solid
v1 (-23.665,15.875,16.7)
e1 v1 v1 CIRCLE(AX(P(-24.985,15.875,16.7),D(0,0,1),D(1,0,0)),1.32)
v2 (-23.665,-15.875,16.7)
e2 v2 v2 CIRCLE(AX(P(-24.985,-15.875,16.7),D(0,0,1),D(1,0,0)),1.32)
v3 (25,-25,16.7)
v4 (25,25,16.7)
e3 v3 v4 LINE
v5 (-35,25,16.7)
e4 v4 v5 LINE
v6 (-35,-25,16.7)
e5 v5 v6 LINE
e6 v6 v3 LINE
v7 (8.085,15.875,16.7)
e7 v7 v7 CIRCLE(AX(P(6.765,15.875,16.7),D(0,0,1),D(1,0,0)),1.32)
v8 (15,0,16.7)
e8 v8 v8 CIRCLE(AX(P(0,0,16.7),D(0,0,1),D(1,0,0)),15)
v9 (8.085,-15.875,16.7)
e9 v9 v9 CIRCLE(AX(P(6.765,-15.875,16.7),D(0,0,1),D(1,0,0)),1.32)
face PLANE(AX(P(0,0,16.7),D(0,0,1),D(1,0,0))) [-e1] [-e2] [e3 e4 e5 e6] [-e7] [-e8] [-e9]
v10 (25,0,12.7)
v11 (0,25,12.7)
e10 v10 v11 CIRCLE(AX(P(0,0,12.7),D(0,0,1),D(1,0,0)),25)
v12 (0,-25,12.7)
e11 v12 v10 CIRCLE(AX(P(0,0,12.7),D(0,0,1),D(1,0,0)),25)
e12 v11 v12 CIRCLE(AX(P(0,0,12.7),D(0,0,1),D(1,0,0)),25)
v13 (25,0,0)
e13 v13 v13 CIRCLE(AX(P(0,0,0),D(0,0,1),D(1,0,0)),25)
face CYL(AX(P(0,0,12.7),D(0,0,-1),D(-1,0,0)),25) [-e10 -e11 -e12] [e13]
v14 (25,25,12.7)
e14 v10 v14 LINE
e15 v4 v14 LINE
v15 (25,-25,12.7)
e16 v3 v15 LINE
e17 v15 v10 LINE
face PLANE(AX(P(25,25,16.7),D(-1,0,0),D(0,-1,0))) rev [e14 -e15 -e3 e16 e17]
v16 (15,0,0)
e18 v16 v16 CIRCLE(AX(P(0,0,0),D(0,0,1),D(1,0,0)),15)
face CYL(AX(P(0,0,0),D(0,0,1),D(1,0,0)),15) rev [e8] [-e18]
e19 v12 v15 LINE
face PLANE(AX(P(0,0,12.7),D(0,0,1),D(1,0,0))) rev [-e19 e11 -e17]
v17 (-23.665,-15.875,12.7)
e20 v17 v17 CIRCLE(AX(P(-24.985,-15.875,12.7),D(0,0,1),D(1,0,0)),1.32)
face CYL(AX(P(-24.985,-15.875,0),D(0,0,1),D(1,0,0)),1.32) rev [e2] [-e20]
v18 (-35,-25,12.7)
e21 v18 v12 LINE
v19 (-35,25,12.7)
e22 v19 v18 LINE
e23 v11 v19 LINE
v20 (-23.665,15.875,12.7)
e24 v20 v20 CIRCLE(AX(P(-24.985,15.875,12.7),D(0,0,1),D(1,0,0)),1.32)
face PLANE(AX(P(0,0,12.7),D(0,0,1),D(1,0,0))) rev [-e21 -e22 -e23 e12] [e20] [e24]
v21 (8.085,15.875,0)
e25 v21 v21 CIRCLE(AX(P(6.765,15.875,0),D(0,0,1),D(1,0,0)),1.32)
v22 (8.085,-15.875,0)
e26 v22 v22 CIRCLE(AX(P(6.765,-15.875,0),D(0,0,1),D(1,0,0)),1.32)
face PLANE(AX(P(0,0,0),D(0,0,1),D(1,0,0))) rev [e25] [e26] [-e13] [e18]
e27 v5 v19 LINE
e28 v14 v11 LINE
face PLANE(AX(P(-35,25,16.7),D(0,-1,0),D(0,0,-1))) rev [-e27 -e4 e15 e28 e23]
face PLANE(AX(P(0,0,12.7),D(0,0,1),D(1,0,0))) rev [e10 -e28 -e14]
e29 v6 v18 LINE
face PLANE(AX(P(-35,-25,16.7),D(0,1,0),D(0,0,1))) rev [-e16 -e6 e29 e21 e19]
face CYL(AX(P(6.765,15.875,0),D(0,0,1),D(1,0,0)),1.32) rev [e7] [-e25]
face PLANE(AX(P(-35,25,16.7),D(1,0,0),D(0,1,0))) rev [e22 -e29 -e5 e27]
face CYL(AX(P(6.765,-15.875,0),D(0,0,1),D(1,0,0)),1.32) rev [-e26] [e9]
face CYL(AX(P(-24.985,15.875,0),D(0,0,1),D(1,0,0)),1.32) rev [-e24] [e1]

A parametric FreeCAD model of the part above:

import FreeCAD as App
import Part
import Sketcher
from FreeCAD import Vector
Q = App.Units.Quantity

doc = App.newDocument("Part")
params = doc.addObject("Spreadsheet::Sheet", "Params")
for row, (alias, value) in enumerate([
    ("sketch1_diameter", "50 mm"),
    ("pad1_length", "12.7 mm"),
    ("sketch2_width", "60 mm"),
    ("sketch2_height", "50 mm"),
    ("pad2_length", "4 mm"),
    ("sketch3_diameter", "2.64 mm"),
    ("sketch4_diameter", "30 mm"),
], start=1):
    params.set(f"A{row}", alias)
    params.set(f"B{row}", "=" + value)
    params.setAlias(f"B{row}", alias)

body = doc.addObject("PartDesign::Body", "Body")

# Sketch on XY plane
sketch1 = body.newObject("Sketcher::SketchObject", "Sketch")
sketch1.AttachmentSupport = (doc.getObject("XY_Plane"), [""])
sketch1.MapMode = "FlatFace"
sketch1.addGeometry(Part.Circle(Vector(0, 0, 0), Vector(0, 0, 1), 25), False)
sketch1.addConstraint([
    Sketcher.Constraint("Coincident", 0, 3, -1, 1),
    Sketcher.Constraint("Diameter", 0, Q("50 mm")),
])
sketch1.setExpression("Constraints[1]", "Params.sketch1_diameter")
pad1 = body.newObject("PartDesign::Pad", "Pad")
pad1.Profile = sketch1
pad1.setExpression("Length", "Params.pad1_length")

# Sketch on XY plane
sketch2 = body.newObject("Sketcher::SketchObject", "Sketch001")
sketch2.AttachmentSupport = (doc.getObject("XY_Plane"), [""])
sketch2.MapMode = "FlatFace"
sketch2.AttachmentOffset = App.Placement(Vector(0, 0, 12.7), App.Rotation())
sketch2.addGeometry([
    Part.LineSegment(Vector(-35, 25, 0), Vector(-35, -25, 0)),
    Part.LineSegment(Vector(-35, -25, 0), Vector(25, -25, 0)),
    Part.LineSegment(Vector(25, -25, 0), Vector(25, 25, 0)),
    Part.LineSegment(Vector(25, 25, 0), Vector(-35, 25, 0)),
], False)
sketch2.addConstraint([
    Sketcher.Constraint("Coincident", 0, 2, 1, 1),
    Sketcher.Constraint("Coincident", 1, 2, 2, 1),
    Sketcher.Constraint("Coincident", 2, 2, 3, 1),
    Sketcher.Constraint("Coincident", 3, 2, 0, 1),
    Sketcher.Constraint("Vertical", 0),
    Sketcher.Constraint("Horizontal", 1),
    Sketcher.Constraint("Vertical", 2),
    Sketcher.Constraint("Horizontal", 3),
    Sketcher.Constraint("DistanceX", 1, 1, 1, 2, Q("60 mm")),
    Sketcher.Constraint("DistanceY", 0, 2, 0, 1, Q("50 mm")),
    Sketcher.Constraint("DistanceX", 0, 2, -1, 1, Q("35 mm")),
    Sketcher.Constraint("DistanceY", 0, 2, -1, 1, Q("25 mm")),
])
sketch2.setExpression("Constraints[8]", "Params.sketch2_width")
sketch2.setExpression("Constraints[9]", "Params.sketch2_height")
pad2 = body.newObject("PartDesign::Pad", "Pad001")
pad2.Profile = sketch2
pad2.setExpression("Length", "Params.pad2_length")

# Sketch on XY plane
sketch3 = body.newObject("Sketcher::SketchObject", "Sketch002")
sketch3.AttachmentSupport = (doc.getObject("XY_Plane"), [""])
sketch3.MapMode = "FlatFace"
sketch3.AttachmentOffset = App.Placement(Vector(0, 0, 16.7), App.Rotation())
sketch3.addGeometry([
    Part.Circle(Vector(-25, 15.9, 0), Vector(0, 0, 1), 1.3),
    Part.Circle(Vector(6.8, 15.9, 0), Vector(0, 0, 1), 1.3),
    Part.Circle(Vector(6.8, -15.9, 0), Vector(0, 0, 1), 1.3),
    Part.Circle(Vector(-25, -15.9, 0), Vector(0, 0, 1), 1.3),
], False)
sketch3.addConstraint([
    Sketcher.Constraint("Equal", 0, 1),
    Sketcher.Constraint("Equal", 1, 2),
    Sketcher.Constraint("Equal", 2, 3),
    Sketcher.Constraint("Symmetric", 1, 3, 2, 3, -1),
    Sketcher.Constraint("Symmetric", 0, 3, 3, 3, -1),
    Sketcher.Constraint("Horizontal", 0, 3, 1, 3),
    Sketcher.Constraint("Diameter", 0, Q("2.64 mm")),
    Sketcher.Constraint("DistanceX", 0, 3, 1, 3, Q("31.75 mm")),
    Sketcher.Constraint("DistanceY", 2, 3, 1, 3, Q("31.75 mm")),
    Sketcher.Constraint("DistanceX", 0, 3, -1, 1, Q("24.985 mm")),
])
sketch3.setExpression("Constraints[6]", "Params.sketch3_diameter")
pocket1 = body.newObject("PartDesign::Pocket", "Pocket")
pocket1.Profile = sketch3
pocket1.Type = "ThroughAll"

# Sketch on XY plane
sketch4 = body.newObject("Sketcher::SketchObject", "Sketch003")
sketch4.AttachmentSupport = (doc.getObject("XY_Plane"), [""])
sketch4.MapMode = "FlatFace"
sketch4.AttachmentOffset = App.Placement(Vector(0, 0, 16.7), App.Rotation())
sketch4.addGeometry(Part.Circle(Vector(0, 0, 0), Vector(0, 0, 1), 15), False)
sketch4.addConstraint([
    Sketcher.Constraint("Coincident", 0, 3, -1, 1),
    Sketcher.Constraint("Diameter", 0, Q("30 mm")),
])
sketch4.setExpression("Constraints[1]", "Params.sketch4_diameter")
pocket2 = body.newObject("PartDesign::Pocket", "Pocket001")
pocket2.Profile = sketch4
pocket2.Type = "ThroughAll"

doc.recompute()
